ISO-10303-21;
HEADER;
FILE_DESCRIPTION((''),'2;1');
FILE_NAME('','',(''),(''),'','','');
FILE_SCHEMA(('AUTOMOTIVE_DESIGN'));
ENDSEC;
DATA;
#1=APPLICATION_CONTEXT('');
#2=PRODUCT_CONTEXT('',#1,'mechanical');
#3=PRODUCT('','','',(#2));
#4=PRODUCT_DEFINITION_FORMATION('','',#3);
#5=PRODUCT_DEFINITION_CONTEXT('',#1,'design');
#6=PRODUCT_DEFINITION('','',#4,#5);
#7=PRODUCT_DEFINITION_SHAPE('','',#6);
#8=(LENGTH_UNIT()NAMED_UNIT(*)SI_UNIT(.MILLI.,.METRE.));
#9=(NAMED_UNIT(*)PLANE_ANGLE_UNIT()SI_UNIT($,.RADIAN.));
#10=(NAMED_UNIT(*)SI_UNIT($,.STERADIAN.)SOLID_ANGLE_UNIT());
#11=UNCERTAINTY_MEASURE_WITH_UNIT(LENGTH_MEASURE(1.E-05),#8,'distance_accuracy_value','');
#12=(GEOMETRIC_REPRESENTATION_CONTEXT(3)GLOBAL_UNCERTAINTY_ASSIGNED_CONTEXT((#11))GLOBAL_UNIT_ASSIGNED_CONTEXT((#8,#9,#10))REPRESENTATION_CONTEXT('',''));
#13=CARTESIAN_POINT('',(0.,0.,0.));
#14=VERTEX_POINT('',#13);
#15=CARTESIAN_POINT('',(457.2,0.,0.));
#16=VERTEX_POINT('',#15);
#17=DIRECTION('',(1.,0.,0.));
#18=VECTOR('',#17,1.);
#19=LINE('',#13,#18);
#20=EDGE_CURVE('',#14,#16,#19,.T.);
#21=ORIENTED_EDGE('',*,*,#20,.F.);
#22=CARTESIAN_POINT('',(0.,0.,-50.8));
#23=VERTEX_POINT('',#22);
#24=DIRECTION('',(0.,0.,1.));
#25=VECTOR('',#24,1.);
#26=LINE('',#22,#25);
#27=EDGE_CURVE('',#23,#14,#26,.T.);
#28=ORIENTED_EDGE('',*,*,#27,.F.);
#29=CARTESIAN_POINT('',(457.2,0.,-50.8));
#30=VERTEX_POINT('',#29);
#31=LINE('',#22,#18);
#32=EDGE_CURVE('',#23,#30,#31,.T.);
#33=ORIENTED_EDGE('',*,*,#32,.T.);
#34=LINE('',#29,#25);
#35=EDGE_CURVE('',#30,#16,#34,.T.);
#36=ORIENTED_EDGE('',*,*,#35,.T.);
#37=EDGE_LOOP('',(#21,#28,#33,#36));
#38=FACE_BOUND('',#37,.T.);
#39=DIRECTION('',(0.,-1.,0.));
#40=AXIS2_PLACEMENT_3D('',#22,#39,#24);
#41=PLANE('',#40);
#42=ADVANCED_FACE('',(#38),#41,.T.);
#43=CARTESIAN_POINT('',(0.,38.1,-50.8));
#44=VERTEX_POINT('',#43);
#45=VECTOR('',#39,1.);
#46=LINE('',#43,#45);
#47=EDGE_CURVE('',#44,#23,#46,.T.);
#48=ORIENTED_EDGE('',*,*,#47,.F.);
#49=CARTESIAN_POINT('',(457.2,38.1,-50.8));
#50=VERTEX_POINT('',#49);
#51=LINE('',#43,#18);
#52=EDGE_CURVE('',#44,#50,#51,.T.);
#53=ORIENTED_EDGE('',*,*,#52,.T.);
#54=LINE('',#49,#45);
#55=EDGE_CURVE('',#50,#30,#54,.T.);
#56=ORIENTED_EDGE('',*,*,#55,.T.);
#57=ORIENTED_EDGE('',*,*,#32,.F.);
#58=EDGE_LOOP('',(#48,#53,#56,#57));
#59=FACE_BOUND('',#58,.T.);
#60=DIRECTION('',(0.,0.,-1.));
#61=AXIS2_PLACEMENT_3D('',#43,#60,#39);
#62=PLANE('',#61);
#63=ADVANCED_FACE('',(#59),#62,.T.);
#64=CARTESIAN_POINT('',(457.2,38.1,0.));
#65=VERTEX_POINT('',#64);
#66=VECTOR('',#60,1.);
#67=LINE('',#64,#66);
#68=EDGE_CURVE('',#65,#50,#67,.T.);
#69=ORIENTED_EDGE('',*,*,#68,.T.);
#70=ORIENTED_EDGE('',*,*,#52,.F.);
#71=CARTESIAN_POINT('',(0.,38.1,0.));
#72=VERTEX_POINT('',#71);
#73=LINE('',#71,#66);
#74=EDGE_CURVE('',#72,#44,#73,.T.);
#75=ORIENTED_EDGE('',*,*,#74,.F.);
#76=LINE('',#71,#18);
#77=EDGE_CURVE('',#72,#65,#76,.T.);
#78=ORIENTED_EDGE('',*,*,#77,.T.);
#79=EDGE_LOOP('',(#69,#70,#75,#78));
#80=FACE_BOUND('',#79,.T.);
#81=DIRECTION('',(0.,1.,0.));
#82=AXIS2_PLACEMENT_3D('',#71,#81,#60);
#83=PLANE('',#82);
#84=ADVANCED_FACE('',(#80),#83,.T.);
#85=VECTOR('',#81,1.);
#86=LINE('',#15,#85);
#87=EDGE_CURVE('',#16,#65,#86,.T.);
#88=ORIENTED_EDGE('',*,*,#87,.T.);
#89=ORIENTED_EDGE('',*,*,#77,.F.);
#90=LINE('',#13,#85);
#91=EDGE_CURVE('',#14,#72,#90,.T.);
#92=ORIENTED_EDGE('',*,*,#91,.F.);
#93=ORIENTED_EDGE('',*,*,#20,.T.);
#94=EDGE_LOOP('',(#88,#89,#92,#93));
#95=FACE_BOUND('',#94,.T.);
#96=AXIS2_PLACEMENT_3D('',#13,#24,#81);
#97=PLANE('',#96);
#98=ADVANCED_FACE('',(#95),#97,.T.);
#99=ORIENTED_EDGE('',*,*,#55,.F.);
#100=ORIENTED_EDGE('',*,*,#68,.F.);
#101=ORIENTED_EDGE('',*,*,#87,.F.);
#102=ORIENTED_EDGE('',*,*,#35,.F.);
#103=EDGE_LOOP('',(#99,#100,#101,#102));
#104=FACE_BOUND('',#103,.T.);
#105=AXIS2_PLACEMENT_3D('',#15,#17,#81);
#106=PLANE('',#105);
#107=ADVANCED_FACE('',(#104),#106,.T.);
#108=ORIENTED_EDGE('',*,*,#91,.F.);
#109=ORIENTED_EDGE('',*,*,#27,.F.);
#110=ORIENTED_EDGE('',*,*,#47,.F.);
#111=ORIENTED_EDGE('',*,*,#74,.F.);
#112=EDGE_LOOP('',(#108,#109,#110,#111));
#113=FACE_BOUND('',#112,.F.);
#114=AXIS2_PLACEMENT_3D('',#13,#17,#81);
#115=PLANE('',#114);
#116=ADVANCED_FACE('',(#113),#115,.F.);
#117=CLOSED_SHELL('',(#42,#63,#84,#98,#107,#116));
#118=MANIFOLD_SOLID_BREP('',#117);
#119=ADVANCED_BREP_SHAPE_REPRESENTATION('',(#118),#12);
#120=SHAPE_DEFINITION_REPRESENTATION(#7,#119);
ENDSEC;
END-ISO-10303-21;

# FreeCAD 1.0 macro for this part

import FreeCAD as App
import Part
import Sketcher
Q = App.Units.Quantity

doc = App.newDocument("Part")
body = doc.addObject("PartDesign::Body", "Body")

sketch1 = doc.addObject("Sketcher::SketchObject", "Sketch")
body.addObject(sketch1)
sketch1.AttachmentSupport = (doc.YZ_Plane, [""])
sketch1.MapMode = "FlatFace"
sketch1.addGeometry([
    Part.LineSegment(App.Vector(38, 0, 0), App.Vector(0, 0, 0)),
    Part.LineSegment(App.Vector(0, 0, 0), App.Vector(0, -51, 0)),
    Part.LineSegment(App.Vector(0, -51, 0), App.Vector(38, -51, 0)),
    Part.LineSegment(App.Vector(38, -51, 0), App.Vector(38, 0, 0)),
], False)
sketch1.addConstraint([
    Sketcher.Constraint("Coincident", 0, 2, 1, 1),
    Sketcher.Constraint("Coincident", 1, 2, 2, 1),
    Sketcher.Constraint("Coincident", 2, 2, 3, 1),
    Sketcher.Constraint("Coincident", 3, 2, 0, 1),
    Sketcher.Constraint("Horizontal", 0),
    Sketcher.Constraint("Vertical", 1),
    Sketcher.Constraint("Horizontal", 2),
    Sketcher.Constraint("Vertical", 3),
    Sketcher.Constraint("Coincident", 0, 2, -1, 1),
    Sketcher.Constraint("DistanceY", 1, 2, 1, 1, Q("2 in")),
    Sketcher.Constraint("DistanceX", 0, 2, 0, 1, Q("1.5 in")),
])
pad1 = doc.addObject("PartDesign::Pad", "Pad")
body.addObject(pad1)
pad1.Profile = sketch1
pad1.Length = Q("18 in")

doc.recompute()
